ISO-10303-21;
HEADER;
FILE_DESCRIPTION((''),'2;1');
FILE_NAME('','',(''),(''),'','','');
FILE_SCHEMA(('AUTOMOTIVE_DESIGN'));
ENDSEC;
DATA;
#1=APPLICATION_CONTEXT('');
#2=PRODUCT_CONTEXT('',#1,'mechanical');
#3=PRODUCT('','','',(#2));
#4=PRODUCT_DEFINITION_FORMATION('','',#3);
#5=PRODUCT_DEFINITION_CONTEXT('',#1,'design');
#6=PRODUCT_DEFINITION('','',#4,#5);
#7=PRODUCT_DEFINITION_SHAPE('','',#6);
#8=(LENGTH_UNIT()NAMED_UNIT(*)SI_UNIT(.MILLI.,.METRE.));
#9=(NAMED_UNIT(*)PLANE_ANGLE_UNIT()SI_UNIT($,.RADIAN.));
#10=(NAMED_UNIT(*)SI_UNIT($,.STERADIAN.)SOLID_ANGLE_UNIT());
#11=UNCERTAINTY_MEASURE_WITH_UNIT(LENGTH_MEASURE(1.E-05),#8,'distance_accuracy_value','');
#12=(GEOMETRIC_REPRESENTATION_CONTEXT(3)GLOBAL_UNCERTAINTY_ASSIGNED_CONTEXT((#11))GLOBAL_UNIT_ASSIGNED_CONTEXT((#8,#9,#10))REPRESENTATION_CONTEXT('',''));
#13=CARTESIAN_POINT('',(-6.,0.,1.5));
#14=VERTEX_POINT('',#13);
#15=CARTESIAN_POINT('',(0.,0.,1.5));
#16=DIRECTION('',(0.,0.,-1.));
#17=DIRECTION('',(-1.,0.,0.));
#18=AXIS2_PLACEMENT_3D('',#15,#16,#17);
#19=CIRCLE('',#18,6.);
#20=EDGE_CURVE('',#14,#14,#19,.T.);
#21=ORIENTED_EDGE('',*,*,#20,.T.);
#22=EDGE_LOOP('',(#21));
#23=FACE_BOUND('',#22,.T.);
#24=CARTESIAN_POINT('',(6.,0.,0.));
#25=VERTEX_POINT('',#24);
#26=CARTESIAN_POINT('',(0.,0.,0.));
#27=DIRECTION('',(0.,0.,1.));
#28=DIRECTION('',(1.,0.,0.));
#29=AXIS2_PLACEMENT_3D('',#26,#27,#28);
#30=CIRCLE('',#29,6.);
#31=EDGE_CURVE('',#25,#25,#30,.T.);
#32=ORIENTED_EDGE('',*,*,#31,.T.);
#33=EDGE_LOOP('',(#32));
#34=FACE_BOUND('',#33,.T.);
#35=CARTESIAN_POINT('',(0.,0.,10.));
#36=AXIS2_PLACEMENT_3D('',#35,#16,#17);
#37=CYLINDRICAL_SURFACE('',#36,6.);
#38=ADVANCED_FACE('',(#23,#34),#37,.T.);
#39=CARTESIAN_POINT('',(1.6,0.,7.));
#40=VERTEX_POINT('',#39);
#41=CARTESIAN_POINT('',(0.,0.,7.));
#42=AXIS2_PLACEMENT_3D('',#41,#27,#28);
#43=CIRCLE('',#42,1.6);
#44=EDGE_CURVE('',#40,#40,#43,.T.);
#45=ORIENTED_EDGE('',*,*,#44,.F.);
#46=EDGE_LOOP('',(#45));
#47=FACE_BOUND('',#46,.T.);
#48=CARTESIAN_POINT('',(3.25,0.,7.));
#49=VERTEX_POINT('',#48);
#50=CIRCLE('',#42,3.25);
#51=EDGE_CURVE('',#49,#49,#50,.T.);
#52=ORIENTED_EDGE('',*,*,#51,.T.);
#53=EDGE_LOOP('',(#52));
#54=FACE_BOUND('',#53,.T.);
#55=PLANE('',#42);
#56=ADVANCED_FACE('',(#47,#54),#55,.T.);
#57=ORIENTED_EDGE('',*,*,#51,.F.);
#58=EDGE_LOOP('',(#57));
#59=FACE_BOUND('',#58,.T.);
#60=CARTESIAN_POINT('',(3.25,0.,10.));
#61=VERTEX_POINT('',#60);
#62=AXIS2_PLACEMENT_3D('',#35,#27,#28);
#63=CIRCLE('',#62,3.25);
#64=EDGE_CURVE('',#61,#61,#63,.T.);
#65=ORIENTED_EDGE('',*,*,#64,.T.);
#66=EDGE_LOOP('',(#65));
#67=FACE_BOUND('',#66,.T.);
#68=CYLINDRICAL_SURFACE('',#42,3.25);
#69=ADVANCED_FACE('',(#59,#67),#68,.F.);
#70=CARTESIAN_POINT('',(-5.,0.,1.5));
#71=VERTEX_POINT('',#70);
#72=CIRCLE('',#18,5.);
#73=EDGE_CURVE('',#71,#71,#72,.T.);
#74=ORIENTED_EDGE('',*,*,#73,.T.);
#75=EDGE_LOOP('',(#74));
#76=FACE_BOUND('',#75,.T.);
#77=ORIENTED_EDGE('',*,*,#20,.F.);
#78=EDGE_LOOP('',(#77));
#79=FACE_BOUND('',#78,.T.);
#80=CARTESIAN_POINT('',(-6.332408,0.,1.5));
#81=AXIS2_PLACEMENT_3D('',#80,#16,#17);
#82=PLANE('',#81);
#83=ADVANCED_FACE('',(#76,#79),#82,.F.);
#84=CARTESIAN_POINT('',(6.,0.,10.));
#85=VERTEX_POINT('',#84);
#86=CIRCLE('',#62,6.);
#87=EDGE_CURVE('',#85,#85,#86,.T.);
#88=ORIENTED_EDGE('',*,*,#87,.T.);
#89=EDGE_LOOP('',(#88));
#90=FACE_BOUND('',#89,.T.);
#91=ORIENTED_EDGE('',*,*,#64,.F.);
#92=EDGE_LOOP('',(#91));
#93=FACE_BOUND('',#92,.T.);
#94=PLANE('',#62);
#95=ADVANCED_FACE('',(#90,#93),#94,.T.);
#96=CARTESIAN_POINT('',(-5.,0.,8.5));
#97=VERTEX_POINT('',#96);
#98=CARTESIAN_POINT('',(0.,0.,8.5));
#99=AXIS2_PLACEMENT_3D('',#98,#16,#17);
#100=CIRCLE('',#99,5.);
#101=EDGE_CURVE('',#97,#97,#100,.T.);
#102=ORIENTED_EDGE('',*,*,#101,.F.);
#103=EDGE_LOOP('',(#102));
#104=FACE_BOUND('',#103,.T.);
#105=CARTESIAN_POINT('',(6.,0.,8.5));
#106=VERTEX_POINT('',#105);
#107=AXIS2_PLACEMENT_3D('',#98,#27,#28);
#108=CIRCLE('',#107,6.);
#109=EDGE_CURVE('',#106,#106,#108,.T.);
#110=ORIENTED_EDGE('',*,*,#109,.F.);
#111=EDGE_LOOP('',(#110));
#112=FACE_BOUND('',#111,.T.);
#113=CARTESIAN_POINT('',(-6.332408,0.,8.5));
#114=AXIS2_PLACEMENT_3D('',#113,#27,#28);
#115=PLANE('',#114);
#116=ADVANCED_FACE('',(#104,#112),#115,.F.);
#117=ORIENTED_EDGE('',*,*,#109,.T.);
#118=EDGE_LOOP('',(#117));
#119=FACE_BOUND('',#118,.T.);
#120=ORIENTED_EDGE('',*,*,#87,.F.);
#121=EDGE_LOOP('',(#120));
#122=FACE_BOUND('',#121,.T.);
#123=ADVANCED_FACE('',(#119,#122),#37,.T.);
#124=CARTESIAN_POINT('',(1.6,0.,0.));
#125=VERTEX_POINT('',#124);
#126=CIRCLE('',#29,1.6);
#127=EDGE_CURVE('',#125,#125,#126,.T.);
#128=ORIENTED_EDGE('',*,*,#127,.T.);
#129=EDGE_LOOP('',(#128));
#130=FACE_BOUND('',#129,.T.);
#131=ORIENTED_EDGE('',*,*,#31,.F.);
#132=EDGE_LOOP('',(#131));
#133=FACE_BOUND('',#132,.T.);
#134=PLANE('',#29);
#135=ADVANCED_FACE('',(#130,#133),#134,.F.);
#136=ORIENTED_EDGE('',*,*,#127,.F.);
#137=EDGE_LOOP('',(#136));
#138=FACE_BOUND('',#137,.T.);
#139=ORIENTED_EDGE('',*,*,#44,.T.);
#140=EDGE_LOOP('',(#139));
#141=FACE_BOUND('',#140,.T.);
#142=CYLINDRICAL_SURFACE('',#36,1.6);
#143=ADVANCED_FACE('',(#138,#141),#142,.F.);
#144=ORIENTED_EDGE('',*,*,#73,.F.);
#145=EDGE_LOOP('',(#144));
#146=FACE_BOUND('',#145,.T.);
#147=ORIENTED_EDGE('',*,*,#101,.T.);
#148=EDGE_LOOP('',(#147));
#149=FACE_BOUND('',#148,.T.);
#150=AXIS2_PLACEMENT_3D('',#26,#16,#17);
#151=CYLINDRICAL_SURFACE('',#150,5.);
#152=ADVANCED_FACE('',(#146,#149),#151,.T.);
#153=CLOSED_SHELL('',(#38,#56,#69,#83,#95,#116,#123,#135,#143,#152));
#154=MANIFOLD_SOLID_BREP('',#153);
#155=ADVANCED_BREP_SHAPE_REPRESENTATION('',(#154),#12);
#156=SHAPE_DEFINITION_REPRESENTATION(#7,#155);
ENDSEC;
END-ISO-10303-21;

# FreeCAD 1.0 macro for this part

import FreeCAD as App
import Part
import Sketcher

V = App.Vector
Q = App.Units.Quantity


def add_polygon(sketch, points):
    """Adds a closed chain of lines whose ends are joined by coincident constraints."""
    first, n = sketch.GeometryCount, len(points)
    for a, b in zip(points, points[1:] + points[:1]):
        sketch.addGeometry(Part.LineSegment(App.Vector(*a, 0), App.Vector(*b, 0)), False)
    for i in range(n):
        sketch.addConstraint(Sketcher.Constraint("Coincident", first + i, 2, first + (i + 1) % n, 1))

doc = App.newDocument("Part")
body = doc.addObject("PartDesign::Body", "Body")

# Sketch on XY plane
sketch1 = body.newObject("Sketcher::SketchObject", "Sketch")
sketch1.AttachmentSupport = (doc.getObject("XY_Plane"), [""])
sketch1.MapMode = "FlatFace"
sketch1.addGeometry([
    Part.Circle(V(0, 0, 0), V(0, 0, 1), 6),
    Part.Circle(V(0, 0, 0), V(0, 0, 1), 1.6),
], False)
sketch1.addConstraint([
    Sketcher.Constraint("Coincident", 0, 3, -1, 1),
    Sketcher.Constraint("Coincident", 1, 3, -1, 1),
    Sketcher.Constraint("Diameter", 0, Q("12 mm")),
    Sketcher.Constraint("Diameter", 1, Q("3.2 mm")),
])
pad1 = body.newObject("PartDesign::Pad", "Pad")
pad1.Profile = sketch1
pad1.Length = 10

# Sketch on XZ plane
sketch2 = body.newObject("Sketcher::SketchObject", "Sketch001")
sketch2.AttachmentSupport = (doc.getObject("XZ_Plane"), [""])
sketch2.MapMode = "FlatFace"
add_polygon(sketch2, [(-6.332408, 1.5), (-6.332408, 8.5), (-5, 8.5), (-5, 1.5)])  # lines 0-3
sketch2.addConstraint([
    Sketcher.Constraint("Vertical", 0),
    Sketcher.Constraint("Horizontal", 1),
    Sketcher.Constraint("Vertical", 2),
    Sketcher.Constraint("Horizontal", 3),
    Sketcher.Constraint("DistanceY", 0, 1, 0, 2, Q("7 mm")),
    Sketcher.Constraint("DistanceX", 1, 2, -1, 1, Q("5 mm")),
    Sketcher.Constraint("DistanceY", -1, 1, 0, 2, Q("8.5 mm")),
    Sketcher.Constraint("DistanceX", 1, 1, 1, 2, Q("1.332408 mm")),
])
groove = body.newObject("PartDesign::Groove", "Groove")
groove.Profile = sketch2
groove.ReferenceAxis = (sketch2, ["V_Axis"])
groove.Angle = 360

# Sketch on XY plane
sketch3 = body.newObject("Sketcher::SketchObject", "Sketch002")
sketch3.AttachmentSupport = (doc.getObject("XY_Plane"), [""])
sketch3.MapMode = "FlatFace"
sketch3.AttachmentOffset = App.Placement(V(0, 0, 10), App.Rotation())
sketch3.addGeometry(Part.Circle(V(0, 0, 0), V(0, 0, 1), 3.25), False)
sketch3.addConstraint([
    Sketcher.Constraint("Coincident", 0, 3, -1, 1),
    Sketcher.Constraint("Diameter", 0, Q("6.5 mm")),
])
pocket1 = body.newObject("PartDesign::Pocket", "Pocket")
pocket1.Profile = sketch3
pocket1.Length = 3

doc.recompute()
